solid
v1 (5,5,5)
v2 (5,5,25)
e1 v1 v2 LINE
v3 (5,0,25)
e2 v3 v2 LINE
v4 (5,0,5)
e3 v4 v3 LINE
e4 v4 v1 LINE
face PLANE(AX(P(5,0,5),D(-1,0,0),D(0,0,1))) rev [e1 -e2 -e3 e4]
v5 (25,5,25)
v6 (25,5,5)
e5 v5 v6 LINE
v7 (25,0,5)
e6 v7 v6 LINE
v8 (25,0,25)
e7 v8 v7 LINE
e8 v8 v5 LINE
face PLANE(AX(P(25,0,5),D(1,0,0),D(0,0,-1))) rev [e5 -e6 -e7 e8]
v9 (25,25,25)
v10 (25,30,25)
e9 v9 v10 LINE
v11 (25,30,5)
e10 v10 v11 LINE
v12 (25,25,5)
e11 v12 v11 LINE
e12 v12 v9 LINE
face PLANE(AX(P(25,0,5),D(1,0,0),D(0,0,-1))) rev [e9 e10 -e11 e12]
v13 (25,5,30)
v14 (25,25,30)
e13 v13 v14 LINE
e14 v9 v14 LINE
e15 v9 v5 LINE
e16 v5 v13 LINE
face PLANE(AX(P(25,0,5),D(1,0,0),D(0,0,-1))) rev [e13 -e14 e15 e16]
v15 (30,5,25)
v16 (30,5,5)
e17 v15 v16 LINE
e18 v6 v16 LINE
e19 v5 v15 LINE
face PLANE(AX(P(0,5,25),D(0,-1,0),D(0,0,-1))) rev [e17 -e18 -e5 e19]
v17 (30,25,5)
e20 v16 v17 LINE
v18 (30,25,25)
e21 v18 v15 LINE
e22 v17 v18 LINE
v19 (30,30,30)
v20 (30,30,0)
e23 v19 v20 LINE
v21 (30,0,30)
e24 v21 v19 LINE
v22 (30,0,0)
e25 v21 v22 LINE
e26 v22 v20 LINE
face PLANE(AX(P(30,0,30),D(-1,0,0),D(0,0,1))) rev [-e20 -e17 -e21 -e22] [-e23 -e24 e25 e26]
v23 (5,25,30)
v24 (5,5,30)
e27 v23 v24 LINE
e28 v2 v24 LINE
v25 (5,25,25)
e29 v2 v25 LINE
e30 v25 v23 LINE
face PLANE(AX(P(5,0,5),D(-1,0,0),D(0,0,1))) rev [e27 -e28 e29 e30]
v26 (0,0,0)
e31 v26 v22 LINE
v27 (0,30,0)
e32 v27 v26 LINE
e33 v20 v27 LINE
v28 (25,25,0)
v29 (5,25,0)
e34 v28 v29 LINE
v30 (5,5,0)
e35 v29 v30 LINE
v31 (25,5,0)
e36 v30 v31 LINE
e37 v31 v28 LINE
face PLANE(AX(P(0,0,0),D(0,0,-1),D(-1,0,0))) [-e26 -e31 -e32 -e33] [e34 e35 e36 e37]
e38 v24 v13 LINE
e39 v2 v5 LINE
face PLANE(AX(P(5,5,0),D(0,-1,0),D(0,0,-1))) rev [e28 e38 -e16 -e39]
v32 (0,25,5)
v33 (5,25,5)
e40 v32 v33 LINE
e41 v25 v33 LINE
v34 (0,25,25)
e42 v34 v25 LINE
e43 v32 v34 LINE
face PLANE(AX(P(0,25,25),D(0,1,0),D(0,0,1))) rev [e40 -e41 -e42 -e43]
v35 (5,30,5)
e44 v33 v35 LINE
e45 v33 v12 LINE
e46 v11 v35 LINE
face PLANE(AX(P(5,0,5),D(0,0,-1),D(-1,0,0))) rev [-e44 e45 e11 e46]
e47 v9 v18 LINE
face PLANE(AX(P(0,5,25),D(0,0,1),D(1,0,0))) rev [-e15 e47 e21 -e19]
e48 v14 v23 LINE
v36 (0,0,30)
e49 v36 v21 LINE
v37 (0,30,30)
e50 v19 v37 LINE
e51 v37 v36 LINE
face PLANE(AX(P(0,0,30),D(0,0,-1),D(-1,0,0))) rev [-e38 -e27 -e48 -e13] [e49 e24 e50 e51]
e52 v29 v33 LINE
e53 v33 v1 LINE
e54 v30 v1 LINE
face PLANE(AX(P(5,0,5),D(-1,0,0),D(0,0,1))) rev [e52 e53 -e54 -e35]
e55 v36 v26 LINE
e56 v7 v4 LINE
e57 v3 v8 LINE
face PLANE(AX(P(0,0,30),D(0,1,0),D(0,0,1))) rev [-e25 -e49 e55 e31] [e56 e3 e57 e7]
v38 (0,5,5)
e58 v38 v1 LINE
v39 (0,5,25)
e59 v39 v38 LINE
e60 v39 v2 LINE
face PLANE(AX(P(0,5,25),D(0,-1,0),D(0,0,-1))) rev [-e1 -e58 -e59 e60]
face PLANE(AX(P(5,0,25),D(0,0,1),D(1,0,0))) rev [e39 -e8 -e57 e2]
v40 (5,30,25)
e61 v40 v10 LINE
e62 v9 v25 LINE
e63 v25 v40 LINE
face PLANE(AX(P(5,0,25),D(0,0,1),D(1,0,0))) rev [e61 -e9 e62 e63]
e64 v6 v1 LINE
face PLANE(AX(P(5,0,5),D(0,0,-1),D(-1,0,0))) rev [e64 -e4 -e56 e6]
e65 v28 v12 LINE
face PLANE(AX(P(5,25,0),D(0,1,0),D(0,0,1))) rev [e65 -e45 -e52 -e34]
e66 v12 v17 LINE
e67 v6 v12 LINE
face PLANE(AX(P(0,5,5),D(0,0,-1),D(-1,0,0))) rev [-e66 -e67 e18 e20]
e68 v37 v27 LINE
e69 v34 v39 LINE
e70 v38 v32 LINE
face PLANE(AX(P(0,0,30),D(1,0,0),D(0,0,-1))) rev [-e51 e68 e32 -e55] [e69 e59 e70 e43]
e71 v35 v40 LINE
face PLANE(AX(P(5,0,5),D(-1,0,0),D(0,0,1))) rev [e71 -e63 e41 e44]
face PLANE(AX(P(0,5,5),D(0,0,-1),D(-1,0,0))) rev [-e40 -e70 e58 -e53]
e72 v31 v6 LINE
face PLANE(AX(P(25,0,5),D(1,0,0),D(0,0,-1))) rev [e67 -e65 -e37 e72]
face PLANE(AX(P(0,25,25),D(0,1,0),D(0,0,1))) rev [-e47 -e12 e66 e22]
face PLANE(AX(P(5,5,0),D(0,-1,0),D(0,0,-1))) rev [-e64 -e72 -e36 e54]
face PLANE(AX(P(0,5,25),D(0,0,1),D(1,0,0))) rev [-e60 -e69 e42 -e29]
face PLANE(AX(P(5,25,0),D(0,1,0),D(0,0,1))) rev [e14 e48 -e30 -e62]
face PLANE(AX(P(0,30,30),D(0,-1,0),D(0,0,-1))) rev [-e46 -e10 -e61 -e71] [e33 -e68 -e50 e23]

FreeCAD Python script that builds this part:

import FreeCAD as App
import Part
import Sketcher
from FreeCAD import Vector
Q = App.Units.Quantity

doc = App.newDocument("Part")
body = doc.addObject("PartDesign::Body", "Body")

# Sketch on XY plane
sketch1 = body.newObject("Sketcher::SketchObject", "Sketch")
sketch1.AttachmentSupport = (doc.getObject("XY_Plane"), [""])
sketch1.MapMode = "FlatFace"
sketch1.addGeometry([
    Part.LineSegment(Vector(0, 30, 0), Vector(0, 0, 0)),
    Part.LineSegment(Vector(0, 0, 0), Vector(30, 0, 0)),
    Part.LineSegment(Vector(30, 0, 0), Vector(30, 30, 0)),
    Part.LineSegment(Vector(30, 30, 0), Vector(0, 30, 0)),
], False)
sketch1.addConstraint([
    Sketcher.Constraint("Coincident", 0, 2, 1, 1),
    Sketcher.Constraint("Coincident", 1, 2, 2, 1),
    Sketcher.Constraint("Coincident", 2, 2, 3, 1),
    Sketcher.Constraint("Coincident", 3, 2, 0, 1),
    Sketcher.Constraint("Vertical", 0),
    Sketcher.Constraint("Horizontal", 1),
    Sketcher.Constraint("Vertical", 2),
    Sketcher.Constraint("Horizontal", 3),
    Sketcher.Constraint("Coincident", 0, 2, -1, 1),
    Sketcher.Constraint("Equal", 3, 0),
    Sketcher.Constraint("DistanceX", 1, 1, 1, 2, Q("30 mm")),
])
pad1 = body.newObject("PartDesign::Pad", "Pad")
pad1.Profile = sketch1
pad1.Length = 30

# Sketch on XZ plane
sketch2 = body.newObject("Sketcher::SketchObject", "Sketch001")
sketch2.AttachmentSupport = (doc.getObject("XZ_Plane"), [""])
sketch2.MapMode = "FlatFace"
sketch2.AttachmentOffset = App.Placement(Vector(0, 0, -30), App.Rotation())
sketch2.addGeometry([
    Part.LineSegment(Vector(5, 5, 0), Vector(5, 25, 0)),
    Part.LineSegment(Vector(5, 25, 0), Vector(25, 25, 0)),
    Part.LineSegment(Vector(25, 25, 0), Vector(25, 5, 0)),
    Part.LineSegment(Vector(25, 5, 0), Vector(5, 5, 0)),
], False)
sketch2.addConstraint([
    Sketcher.Constraint("Coincident", 0, 2, 1, 1),
    Sketcher.Constraint("Coincident", 1, 2, 2, 1),
    Sketcher.Constraint("Coincident", 2, 2, 3, 1),
    Sketcher.Constraint("Coincident", 3, 2, 0, 1),
    Sketcher.Constraint("Vertical", 0),
    Sketcher.Constraint("Horizontal", 1),
    Sketcher.Constraint("Vertical", 2),
    Sketcher.Constraint("Horizontal", 3),
    Sketcher.Constraint("Equal", 3, 0),
    Sketcher.Constraint("DistanceX", 1, 1, 1, 2, Q("20 mm")),
    Sketcher.Constraint("DistanceX", -1, 1, 0, 2, Q("5 mm")),
    Sketcher.Constraint("DistanceY", -1, 1, 0, 2, Q("25 mm")),
])
pocket1 = body.newObject("PartDesign::Pocket", "Pocket")
pocket1.Profile = sketch2
pocket1.Type = "ThroughAll"
pocket1.Reversed = True

# Sketch on XY plane
sketch3 = body.newObject("Sketcher::SketchObject", "Sketch002")
sketch3.AttachmentSupport = (doc.getObject("XY_Plane"), [""])
sketch3.MapMode = "FlatFace"
sketch3.AttachmentOffset = App.Placement(Vector(0, 0, 30), App.Rotation())
sketch3.addGeometry([
    Part.LineSegment(Vector(5, 25, 0), Vector(5, 5, 0)),
    Part.LineSegment(Vector(5, 5, 0), Vector(25, 5, 0)),
    Part.LineSegment(Vector(25, 5, 0), Vector(25, 25, 0)),
    Part.LineSegment(Vector(25, 25, 0), Vector(5, 25, 0)),
], False)
sketch3.addConstraint([
    Sketcher.Constraint("Coincident", 0, 2, 1, 1),
    Sketcher.Constraint("Coincident", 1, 2, 2, 1),
    Sketcher.Constraint("Coincident", 2, 2, 3, 1),
    Sketcher.Constraint("Coincident", 3, 2, 0, 1),
    Sketcher.Constraint("Vertical", 0),
    Sketcher.Constraint("Horizontal", 1),
    Sketcher.Constraint("Vertical", 2),
    Sketcher.Constraint("Horizontal", 3),
    Sketcher.Constraint("Equal", 3, 0),
    Sketcher.Constraint("DistanceX", 1, 1, 1, 2, Q("20 mm")),
    Sketcher.Constraint("DistanceX", -1, 1, 0, 2, Q("5 mm")),
    Sketcher.Constraint("DistanceY", -1, 1, 0, 2, Q("5 mm")),
])
pocket2 = body.newObject("PartDesign::Pocket", "Pocket001")
pocket2.Profile = sketch3
pocket2.Type = "ThroughAll"

# Sketch on YZ plane
sketch4 = body.newObject("Sketcher::SketchObject", "Sketch003")
sketch4.AttachmentSupport = (doc.getObject("YZ_Plane"), [""])
sketch4.MapMode = "FlatFace"
sketch4.AttachmentOffset = App.Placement(Vector(0, 0, 30), App.Rotation())
sketch4.addGeometry([
    Part.LineSegment(Vector(25, 25, 0), Vector(5, 25, 0)),
    Part.LineSegment(Vector(5, 25, 0), Vector(5, 5, 0)),
    Part.LineSegment(Vector(5, 5, 0), Vector(25, 5, 0)),
    Part.LineSegment(Vector(25, 5, 0), Vector(25, 25, 0)),
], False)
sketch4.addConstraint([
    Sketcher.Constraint("Coincident", 0, 2, 1, 1),
    Sketcher.Constraint("Coincident", 1, 2, 2, 1),
    Sketcher.Constraint("Coincident", 2, 2, 3, 1),
    Sketcher.Constraint("Coincident", 3, 2, 0, 1),
    Sketcher.Constraint("Horizontal", 0),
    Sketcher.Constraint("Vertical", 1),
    Sketcher.Constraint("Horizontal", 2),
    Sketcher.Constraint("Vertical", 3),
    Sketcher.Constraint("Equal", 2, 1),
    Sketcher.Constraint("DistanceX", 0, 2, 0, 1, Q("20 mm")),
    Sketcher.Constraint("DistanceX", -1, 1, 0, 2, Q("5 mm")),
    Sketcher.Constraint("DistanceY", -1, 1, 0, 2, Q("25 mm")),
])
pocket3 = body.newObject("PartDesign::Pocket", "Pocket002")
pocket3.Profile = sketch4
pocket3.Type = "ThroughAll"

doc.recompute()
